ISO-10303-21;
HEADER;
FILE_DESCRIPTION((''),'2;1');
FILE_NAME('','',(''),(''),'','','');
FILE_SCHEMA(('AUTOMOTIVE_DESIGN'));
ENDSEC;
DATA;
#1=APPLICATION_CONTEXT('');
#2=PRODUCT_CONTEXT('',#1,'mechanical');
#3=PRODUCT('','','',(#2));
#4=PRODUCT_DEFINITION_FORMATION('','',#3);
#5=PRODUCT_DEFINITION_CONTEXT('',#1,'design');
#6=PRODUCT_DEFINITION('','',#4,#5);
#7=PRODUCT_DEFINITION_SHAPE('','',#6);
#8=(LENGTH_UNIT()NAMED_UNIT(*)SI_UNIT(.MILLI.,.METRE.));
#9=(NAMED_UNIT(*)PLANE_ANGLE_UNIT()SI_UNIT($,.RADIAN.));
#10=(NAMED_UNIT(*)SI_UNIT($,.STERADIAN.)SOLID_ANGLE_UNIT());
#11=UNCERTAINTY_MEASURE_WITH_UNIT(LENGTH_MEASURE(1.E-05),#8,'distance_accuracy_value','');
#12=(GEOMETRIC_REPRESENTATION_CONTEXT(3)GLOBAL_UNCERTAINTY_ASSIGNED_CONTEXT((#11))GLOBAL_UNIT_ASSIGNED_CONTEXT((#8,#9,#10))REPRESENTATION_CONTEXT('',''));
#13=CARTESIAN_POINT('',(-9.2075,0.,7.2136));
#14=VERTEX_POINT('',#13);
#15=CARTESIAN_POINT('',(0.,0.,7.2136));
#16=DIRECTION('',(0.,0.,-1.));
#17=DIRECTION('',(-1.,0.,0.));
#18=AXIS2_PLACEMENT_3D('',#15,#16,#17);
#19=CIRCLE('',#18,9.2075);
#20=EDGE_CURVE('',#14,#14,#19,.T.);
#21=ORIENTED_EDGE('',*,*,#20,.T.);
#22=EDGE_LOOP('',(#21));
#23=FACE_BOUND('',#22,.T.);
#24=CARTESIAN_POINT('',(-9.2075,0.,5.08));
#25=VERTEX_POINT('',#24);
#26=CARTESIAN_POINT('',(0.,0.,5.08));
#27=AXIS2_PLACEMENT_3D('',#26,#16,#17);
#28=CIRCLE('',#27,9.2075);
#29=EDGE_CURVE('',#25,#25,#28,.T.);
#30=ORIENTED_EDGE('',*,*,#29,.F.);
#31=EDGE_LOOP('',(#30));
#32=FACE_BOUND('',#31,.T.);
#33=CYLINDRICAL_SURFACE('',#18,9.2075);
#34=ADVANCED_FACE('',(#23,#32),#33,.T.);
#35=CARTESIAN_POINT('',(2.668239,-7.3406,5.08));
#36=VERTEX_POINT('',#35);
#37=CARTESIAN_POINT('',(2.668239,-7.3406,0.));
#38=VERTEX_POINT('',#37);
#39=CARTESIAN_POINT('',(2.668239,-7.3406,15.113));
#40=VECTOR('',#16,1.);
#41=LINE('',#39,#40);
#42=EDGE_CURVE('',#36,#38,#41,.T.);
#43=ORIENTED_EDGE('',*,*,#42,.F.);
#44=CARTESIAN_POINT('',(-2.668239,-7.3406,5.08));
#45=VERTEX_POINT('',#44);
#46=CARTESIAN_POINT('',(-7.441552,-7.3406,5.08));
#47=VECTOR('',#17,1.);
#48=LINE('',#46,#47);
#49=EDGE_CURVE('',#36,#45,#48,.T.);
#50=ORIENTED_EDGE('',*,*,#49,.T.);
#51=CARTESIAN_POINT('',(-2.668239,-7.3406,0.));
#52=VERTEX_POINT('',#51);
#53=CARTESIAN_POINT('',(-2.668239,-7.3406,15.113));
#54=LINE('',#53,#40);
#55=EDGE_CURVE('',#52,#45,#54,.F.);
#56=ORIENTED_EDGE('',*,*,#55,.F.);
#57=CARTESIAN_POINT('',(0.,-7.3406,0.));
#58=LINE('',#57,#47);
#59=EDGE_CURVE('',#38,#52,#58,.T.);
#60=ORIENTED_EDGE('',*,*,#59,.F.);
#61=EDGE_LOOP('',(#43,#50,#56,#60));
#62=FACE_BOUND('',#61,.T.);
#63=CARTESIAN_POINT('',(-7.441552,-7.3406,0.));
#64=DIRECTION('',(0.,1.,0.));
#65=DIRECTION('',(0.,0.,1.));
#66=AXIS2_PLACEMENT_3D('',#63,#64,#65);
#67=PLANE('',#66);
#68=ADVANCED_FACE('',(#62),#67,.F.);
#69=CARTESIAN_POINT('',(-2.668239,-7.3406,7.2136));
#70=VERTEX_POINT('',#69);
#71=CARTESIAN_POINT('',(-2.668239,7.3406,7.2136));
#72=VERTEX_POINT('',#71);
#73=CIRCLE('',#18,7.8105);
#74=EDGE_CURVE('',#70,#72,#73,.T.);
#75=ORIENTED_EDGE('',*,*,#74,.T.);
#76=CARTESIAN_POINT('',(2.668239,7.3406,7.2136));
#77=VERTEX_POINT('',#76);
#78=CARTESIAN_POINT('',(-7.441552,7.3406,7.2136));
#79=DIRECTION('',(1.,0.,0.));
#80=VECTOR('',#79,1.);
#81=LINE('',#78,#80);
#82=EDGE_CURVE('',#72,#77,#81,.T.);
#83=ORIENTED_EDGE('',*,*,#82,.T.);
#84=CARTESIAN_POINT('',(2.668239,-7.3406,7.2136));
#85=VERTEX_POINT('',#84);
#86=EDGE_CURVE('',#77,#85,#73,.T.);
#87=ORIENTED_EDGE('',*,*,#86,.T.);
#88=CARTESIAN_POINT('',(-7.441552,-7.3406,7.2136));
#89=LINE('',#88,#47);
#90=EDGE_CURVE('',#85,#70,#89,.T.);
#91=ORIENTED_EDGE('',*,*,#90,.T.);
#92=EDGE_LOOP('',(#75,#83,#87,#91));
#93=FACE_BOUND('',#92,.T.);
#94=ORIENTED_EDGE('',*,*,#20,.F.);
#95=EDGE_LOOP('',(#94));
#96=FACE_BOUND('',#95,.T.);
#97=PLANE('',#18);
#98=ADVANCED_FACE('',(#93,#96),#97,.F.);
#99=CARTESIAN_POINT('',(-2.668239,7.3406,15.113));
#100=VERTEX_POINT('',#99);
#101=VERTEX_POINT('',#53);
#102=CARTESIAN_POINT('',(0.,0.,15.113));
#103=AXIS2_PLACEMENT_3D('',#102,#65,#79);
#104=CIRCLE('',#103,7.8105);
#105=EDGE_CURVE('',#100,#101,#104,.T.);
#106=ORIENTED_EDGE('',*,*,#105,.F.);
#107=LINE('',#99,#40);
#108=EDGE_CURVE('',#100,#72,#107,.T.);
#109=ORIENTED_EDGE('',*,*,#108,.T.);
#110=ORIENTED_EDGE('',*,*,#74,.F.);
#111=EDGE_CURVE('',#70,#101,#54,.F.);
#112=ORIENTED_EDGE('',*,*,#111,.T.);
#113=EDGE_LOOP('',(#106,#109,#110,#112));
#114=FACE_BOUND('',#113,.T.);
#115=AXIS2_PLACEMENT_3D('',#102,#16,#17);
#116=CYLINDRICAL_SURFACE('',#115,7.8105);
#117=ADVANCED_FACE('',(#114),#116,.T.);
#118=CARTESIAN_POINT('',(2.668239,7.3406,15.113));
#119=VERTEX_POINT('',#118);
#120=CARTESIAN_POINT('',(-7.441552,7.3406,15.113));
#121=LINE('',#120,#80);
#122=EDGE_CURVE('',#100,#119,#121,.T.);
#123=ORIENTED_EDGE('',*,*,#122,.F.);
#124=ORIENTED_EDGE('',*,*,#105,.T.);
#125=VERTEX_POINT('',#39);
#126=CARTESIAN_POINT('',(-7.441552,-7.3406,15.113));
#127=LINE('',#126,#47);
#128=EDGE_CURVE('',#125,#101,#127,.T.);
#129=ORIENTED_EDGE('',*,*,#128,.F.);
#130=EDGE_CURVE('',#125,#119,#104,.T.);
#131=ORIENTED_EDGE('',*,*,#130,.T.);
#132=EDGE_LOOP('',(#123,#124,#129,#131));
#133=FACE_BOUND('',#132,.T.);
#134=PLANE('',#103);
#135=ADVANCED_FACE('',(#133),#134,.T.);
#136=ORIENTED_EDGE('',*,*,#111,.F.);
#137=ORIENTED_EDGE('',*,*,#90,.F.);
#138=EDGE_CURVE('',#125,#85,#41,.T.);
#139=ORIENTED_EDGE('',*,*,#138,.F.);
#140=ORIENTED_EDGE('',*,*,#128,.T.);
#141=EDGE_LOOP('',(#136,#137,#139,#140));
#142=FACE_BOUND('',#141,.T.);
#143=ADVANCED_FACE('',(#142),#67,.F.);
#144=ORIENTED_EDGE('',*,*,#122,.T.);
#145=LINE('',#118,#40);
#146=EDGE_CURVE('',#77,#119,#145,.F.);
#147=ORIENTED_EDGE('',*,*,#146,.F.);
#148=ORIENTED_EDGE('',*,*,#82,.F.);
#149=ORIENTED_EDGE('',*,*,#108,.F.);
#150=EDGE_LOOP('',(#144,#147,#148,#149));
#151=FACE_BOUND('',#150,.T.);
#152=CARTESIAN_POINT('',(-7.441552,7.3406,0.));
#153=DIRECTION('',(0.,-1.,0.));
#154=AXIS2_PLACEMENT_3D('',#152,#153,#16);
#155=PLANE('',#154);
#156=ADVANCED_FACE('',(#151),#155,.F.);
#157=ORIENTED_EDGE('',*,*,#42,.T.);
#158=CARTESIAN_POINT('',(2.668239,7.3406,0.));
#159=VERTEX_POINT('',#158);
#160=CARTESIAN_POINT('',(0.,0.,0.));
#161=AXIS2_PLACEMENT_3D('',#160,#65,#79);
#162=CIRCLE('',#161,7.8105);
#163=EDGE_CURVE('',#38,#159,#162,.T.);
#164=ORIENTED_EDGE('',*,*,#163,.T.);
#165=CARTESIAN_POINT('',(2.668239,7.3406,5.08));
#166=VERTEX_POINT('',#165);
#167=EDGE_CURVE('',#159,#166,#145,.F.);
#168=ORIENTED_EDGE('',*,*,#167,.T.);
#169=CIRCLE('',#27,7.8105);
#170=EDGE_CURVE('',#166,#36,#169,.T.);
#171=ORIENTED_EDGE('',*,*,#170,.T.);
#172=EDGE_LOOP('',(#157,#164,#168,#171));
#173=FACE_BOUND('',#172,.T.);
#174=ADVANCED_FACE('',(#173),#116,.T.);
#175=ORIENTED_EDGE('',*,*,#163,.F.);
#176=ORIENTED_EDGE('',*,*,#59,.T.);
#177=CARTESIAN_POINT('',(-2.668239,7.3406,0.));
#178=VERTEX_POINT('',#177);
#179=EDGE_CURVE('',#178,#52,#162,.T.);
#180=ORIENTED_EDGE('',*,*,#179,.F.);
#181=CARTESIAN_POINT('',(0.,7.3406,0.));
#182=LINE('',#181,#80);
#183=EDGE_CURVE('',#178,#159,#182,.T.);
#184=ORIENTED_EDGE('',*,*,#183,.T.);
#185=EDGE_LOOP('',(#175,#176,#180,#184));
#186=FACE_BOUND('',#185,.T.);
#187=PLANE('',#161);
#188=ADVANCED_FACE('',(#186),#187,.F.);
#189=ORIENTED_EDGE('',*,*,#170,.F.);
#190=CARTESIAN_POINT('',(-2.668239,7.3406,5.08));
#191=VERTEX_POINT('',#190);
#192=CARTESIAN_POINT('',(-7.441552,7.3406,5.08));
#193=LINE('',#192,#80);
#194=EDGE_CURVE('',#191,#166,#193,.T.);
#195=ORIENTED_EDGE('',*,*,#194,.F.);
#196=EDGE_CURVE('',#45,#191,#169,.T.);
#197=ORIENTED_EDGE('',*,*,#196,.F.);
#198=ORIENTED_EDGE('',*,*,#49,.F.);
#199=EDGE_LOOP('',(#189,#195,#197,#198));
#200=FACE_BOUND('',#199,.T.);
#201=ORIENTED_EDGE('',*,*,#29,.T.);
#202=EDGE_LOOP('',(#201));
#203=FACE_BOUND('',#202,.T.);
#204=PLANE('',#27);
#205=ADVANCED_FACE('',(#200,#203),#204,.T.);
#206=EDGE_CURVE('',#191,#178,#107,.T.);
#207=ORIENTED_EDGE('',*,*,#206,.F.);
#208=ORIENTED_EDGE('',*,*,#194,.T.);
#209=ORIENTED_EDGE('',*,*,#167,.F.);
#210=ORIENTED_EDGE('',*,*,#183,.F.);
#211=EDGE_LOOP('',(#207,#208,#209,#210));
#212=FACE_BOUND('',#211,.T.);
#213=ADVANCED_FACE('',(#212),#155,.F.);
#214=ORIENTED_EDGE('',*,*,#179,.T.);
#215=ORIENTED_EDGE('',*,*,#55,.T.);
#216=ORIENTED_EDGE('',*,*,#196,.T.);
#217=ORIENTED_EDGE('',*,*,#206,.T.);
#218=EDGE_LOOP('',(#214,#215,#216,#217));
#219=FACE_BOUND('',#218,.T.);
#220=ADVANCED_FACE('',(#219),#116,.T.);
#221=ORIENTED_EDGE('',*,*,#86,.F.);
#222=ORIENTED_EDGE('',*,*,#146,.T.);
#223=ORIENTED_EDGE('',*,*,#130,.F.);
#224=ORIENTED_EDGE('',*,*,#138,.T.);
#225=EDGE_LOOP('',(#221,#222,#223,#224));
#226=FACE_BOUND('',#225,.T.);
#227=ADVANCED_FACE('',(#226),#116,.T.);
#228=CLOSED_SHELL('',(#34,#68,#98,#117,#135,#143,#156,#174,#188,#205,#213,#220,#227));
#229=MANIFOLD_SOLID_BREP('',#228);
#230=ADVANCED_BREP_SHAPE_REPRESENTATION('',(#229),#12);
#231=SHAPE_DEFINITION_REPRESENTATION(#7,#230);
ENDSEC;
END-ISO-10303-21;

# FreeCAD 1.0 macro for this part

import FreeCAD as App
import Part
import Sketcher
Q = App.Units.Quantity

doc = App.newDocument("Part")
body = doc.addObject("PartDesign::Body", "Body")

sketch1 = body.newObject("Sketcher::SketchObject", "Sketch")
sketch1.AttachmentSupport = (doc.getObject("XY_Plane"), [""])
sketch1.MapMode = "FlatFace"
sketch1.addGeometry(Part.Circle(App.Vector(0, 0, 0), App.Vector(0, 0, 1), 8), False)
sketch1.addConstraint(Sketcher.Constraint("Coincident", 0, 3, -1, 1))
sketch1.addConstraint(Sketcher.Constraint("Diameter", 0, Q("0.615 in")))
pad1 = body.newObject("PartDesign::Pad", "Pad")
pad1.Profile = sketch1
pad1.Length = Q("0.595 in")

sketch2 = body.newObject("Sketcher::SketchObject", "Sketch001")
sketch2.AttachmentSupport = (doc.getObject("XY_Plane"), [""])
sketch2.MapMode = "FlatFace"
sketch2.AttachmentOffset = App.Placement(App.Vector(0, 0, 0.595 * 25.4), App.Rotation())
sketch2.addGeometry(Part.LineSegment(App.Vector(-7.4, 8.6, 0), App.Vector(-7.4, 7.3, 0)), False)
sketch2.addGeometry(Part.LineSegment(App.Vector(-7.4, 7.3, 0), App.Vector(7.4, 7.3, 0)), False)
sketch2.addGeometry(Part.LineSegment(App.Vector(7.4, 7.3, 0), App.Vector(7.4, 8.6, 0)), False)
sketch2.addGeometry(Part.LineSegment(App.Vector(7.4, 8.6, 0), App.Vector(-7.4, 8.6, 0)), False)
sketch2.addGeometry(Part.LineSegment(App.Vector(-7.4, -7.3, 0), App.Vector(-7.4, -8.6, 0)), False)
sketch2.addGeometry(Part.LineSegment(App.Vector(-7.4, -8.6, 0), App.Vector(7.4, -8.6, 0)), False)
sketch2.addGeometry(Part.LineSegment(App.Vector(7.4, -8.6, 0), App.Vector(7.4, -7.3, 0)), False)
sketch2.addGeometry(Part.LineSegment(App.Vector(7.4, -7.3, 0), App.Vector(-7.4, -7.3, 0)), False)
sketch2.addConstraint(Sketcher.Constraint("Coincident", 0, 2, 1, 1))
sketch2.addConstraint(Sketcher.Constraint("Coincident", 1, 2, 2, 1))
sketch2.addConstraint(Sketcher.Constraint("Coincident", 2, 2, 3, 1))
sketch2.addConstraint(Sketcher.Constraint("Coincident", 3, 2, 0, 1))
sketch2.addConstraint(Sketcher.Constraint("Coincident", 4, 2, 5, 1))
sketch2.addConstraint(Sketcher.Constraint("Coincident", 5, 2, 6, 1))
sketch2.addConstraint(Sketcher.Constraint("Coincident", 6, 2, 7, 1))
sketch2.addConstraint(Sketcher.Constraint("Coincident", 7, 2, 4, 1))
sketch2.addConstraint(Sketcher.Constraint("Vertical", 0))
sketch2.addConstraint(Sketcher.Constraint("Horizontal", 1))
sketch2.addConstraint(Sketcher.Constraint("Vertical", 2))
sketch2.addConstraint(Sketcher.Constraint("Horizontal", 3))
sketch2.addConstraint(Sketcher.Constraint("Vertical", 4))
sketch2.addConstraint(Sketcher.Constraint("Horizontal", 5))
sketch2.addConstraint(Sketcher.Constraint("Vertical", 6))
sketch2.addConstraint(Sketcher.Constraint("Horizontal", 7))
sketch2.addConstraint(Sketcher.Constraint("Symmetric", 2, 2, 4, 2, -1, 1))
sketch2.addConstraint(Sketcher.Constraint("Symmetric", 0, 2, 6, 2, -1, 1))
sketch2.addConstraint(Sketcher.Constraint("Vertical", 3, 2, 4, 2))
sketch2.addConstraint(Sketcher.Constraint("DistanceY", -1, 1, 0, 2, Q("0.289 in")))
sketch2.addConstraint(Sketcher.Constraint("DistanceY", 0, 2, 0, 1, Q("1.269889 mm")))
sketch2.addConstraint(Sketcher.Constraint("DistanceX", 1, 1, 1, 2, Q("14.883104 mm")))
pocket1 = body.newObject("PartDesign::Pocket", "Pocket")
pocket1.Profile = sketch2
pocket1.Type = "ThroughAll"

sketch3 = body.newObject("Sketcher::SketchObject", "Sketch002")
sketch3.AttachmentSupport = (doc.getObject("XY_Plane"), [""])
sketch3.MapMode = "FlatFace"
sketch3.AttachmentOffset = App.Placement(App.Vector(0, 0, 0.2 * 25.4), App.Rotation())
sketch3.addGeometry(Part.Circle(App.Vector(0, 0, 0), App.Vector(0, 0, 1), 9), False)
sketch3.addConstraint(Sketcher.Constraint("Coincident", 0, 3, -1, 1))
sketch3.addConstraint(Sketcher.Constraint("Diameter", 0, Q("0.725 in")))
pad2 = body.newObject("PartDesign::Pad", "Pad001")
pad2.Profile = sketch3
pad2.Length = Q("0.084 in")

doc.recompute()
